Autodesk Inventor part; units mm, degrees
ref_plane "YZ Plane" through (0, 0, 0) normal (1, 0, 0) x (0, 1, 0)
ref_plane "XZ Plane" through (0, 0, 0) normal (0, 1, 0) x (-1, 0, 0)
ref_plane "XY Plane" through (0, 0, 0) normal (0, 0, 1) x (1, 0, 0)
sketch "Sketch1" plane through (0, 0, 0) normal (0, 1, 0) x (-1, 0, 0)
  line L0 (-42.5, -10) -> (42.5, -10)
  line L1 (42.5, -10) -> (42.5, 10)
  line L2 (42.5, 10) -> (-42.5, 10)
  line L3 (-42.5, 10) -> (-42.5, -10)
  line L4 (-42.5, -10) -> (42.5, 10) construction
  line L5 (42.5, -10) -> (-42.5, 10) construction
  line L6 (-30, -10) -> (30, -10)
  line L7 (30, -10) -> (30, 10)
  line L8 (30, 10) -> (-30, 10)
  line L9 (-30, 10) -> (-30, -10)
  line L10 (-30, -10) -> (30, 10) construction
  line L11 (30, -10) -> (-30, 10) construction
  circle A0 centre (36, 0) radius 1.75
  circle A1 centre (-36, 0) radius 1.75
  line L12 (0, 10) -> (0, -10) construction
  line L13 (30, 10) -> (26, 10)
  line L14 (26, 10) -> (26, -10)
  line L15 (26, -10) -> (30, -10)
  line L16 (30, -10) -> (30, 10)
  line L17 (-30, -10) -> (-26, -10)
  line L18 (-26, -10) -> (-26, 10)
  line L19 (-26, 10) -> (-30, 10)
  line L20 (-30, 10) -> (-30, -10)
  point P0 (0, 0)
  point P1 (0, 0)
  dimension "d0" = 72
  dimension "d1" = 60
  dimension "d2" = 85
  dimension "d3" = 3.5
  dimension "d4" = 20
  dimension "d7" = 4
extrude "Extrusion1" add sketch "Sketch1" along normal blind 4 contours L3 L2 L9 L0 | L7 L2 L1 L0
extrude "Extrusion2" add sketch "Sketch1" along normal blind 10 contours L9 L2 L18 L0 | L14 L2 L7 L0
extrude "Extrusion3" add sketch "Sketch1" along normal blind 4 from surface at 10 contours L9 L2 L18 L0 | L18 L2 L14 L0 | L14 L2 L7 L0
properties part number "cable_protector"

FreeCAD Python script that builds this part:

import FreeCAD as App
import Part
import Sketcher

doc = App.newDocument("Part")
params = doc.addObject("Spreadsheet::Sheet", "Params")
for row, (alias, value) in enumerate([
    ("sketch1_diameter", "3.5 mm"),
    ("sketch1_height", "20 mm"),
    ("sketch1_width", "12.5 mm"),
    ("pad1_length", "4 mm"),
    ("sketch2_width", "4 mm"),
    ("sketch2_height", "20 mm"),
    ("pad2_length", "10 mm"),
    ("sketch3_width", "60 mm"),
    ("sketch3_height", "20 mm"),
    ("pad3_length", "4 mm"),
], start=1):
    params.set(f"A{row}", alias)
    params.set(f"B{row}", "=" + value)
    params.setAlias(f"B{row}", alias)

body = doc.addObject("PartDesign::Body", "Body")
body.AllowCompound = True

sketch1 = doc.addObject("Sketcher::SketchObject", "Sketch")
body.addObject(sketch1)
sketch1.AttachmentSupport = (doc.XZ_Plane, [""])
sketch1.MapMode = "FlatFace"
sketch1.addGeometry(Part.LineSegment(App.Vector(42.5, 10, 0), App.Vector(42.5, -10, 0)), False)
sketch1.addGeometry(Part.LineSegment(App.Vector(42.5, -10, 0), App.Vector(30, -10, 0)), False)
sketch1.addGeometry(Part.LineSegment(App.Vector(30, -10, 0), App.Vector(30, 10, 0)), False)
sketch1.addGeometry(Part.LineSegment(App.Vector(30, 10, 0), App.Vector(42.5, 10, 0)), False)
sketch1.addGeometry(Part.Circle(App.Vector(36, 0, 0), App.Vector(0, 0, 1), 1.75), False)
sketch1.addGeometry(Part.LineSegment(App.Vector(-30, 10, 0), App.Vector(-30, -10, 0)), False)
sketch1.addGeometry(Part.LineSegment(App.Vector(-30, -10, 0), App.Vector(-42.5, -10, 0)), False)
sketch1.addGeometry(Part.LineSegment(App.Vector(-42.5, -10, 0), App.Vector(-42.5, 10, 0)), False)
sketch1.addGeometry(Part.LineSegment(App.Vector(-42.5, 10, 0), App.Vector(-30, 10, 0)), False)
sketch1.addGeometry(Part.Circle(App.Vector(-36, 0, 0), App.Vector(0, 0, 1), 1.75), False)
sketch1.addConstraint(Sketcher.Constraint("Coincident", 0, 2, 1, 1))
sketch1.addConstraint(Sketcher.Constraint("Coincident", 1, 2, 2, 1))
sketch1.addConstraint(Sketcher.Constraint("Coincident", 2, 2, 3, 1))
sketch1.addConstraint(Sketcher.Constraint("Coincident", 3, 2, 0, 1))
sketch1.addConstraint(Sketcher.Constraint("Coincident", 5, 2, 6, 1))
sketch1.addConstraint(Sketcher.Constraint("Coincident", 6, 2, 7, 1))
sketch1.addConstraint(Sketcher.Constraint("Coincident", 7, 2, 8, 1))
sketch1.addConstraint(Sketcher.Constraint("Coincident", 8, 2, 5, 1))
sketch1.addConstraint(Sketcher.Constraint("Vertical", 0))
sketch1.addConstraint(Sketcher.Constraint("Horizontal", 1))
sketch1.addConstraint(Sketcher.Constraint("Vertical", 2))
sketch1.addConstraint(Sketcher.Constraint("Horizontal", 3))
sketch1.addConstraint(Sketcher.Constraint("Vertical", 5))
sketch1.addConstraint(Sketcher.Constraint("Horizontal", 6))
sketch1.addConstraint(Sketcher.Constraint("Vertical", 7))
sketch1.addConstraint(Sketcher.Constraint("Horizontal", 8))
sketch1.addConstraint(Sketcher.Constraint("Equal", 4, 9))
sketch1.addConstraint(Sketcher.Constraint("Symmetric", 4, 3, 9, 3, -1, 1))
sketch1.addConstraint(Sketcher.Constraint("Symmetric", 2, 2, 5, 2, -1, 1))
sketch1.addConstraint(Sketcher.Constraint("Symmetric", 0, 2, 7, 2, -1, 1))
sketch1.addConstraint(Sketcher.Constraint("PointOnObject", 4, 3, -1))
sketch1.addConstraint(Sketcher.Constraint("Horizontal", 1, 2, 5, 2))
sketch1.addConstraint(Sketcher.Constraint("Diameter", 4, 3.5))
sketch1.addConstraint(Sketcher.Constraint("DistanceY", 0, 2, 0, 1, 20.0))
sketch1.addConstraint(Sketcher.Constraint("DistanceX", 9, 3, 4, 3, 72.0))
sketch1.addConstraint(Sketcher.Constraint("DistanceX", 5, 2, 1, 2, 60.0))
sketch1.addConstraint(Sketcher.Constraint("DistanceX", 1, 2, 1, 1, 12.5))
sketch1.setExpression("Constraints[22]", "Params.sketch1_diameter")
sketch1.setExpression("Constraints[23]", "Params.sketch1_height")
sketch1.setExpression("Constraints[26]", "Params.sketch1_width")
pad1 = doc.addObject("PartDesign::Pad", "Pad")
body.addObject(pad1)
pad1.Profile = sketch1
pad1.setExpression("Length", "Params.pad1_length")
pad1.Reversed = True

sketch2 = doc.addObject("Sketcher::SketchObject", "Sketch001")
body.addObject(sketch2)
sketch2.AttachmentSupport = (doc.XZ_Plane, [""])
sketch2.MapMode = "FlatFace"
sketch2.addGeometry(Part.LineSegment(App.Vector(30, 10, 0), App.Vector(30, -10, 0)), False)
sketch2.addGeometry(Part.LineSegment(App.Vector(30, -10, 0), App.Vector(26, -10, 0)), False)
sketch2.addGeometry(Part.LineSegment(App.Vector(26, -10, 0), App.Vector(26, 10, 0)), False)
sketch2.addGeometry(Part.LineSegment(App.Vector(26, 10, 0), App.Vector(30, 10, 0)), False)
sketch2.addGeometry(Part.LineSegment(App.Vector(-26, 10, 0), App.Vector(-26, -10, 0)), False)
sketch2.addGeometry(Part.LineSegment(App.Vector(-26, -10, 0), App.Vector(-30, -10, 0)), False)
sketch2.addGeometry(Part.LineSegment(App.Vector(-30, -10, 0), App.Vector(-30, 10, 0)), False)
sketch2.addGeometry(Part.LineSegment(App.Vector(-30, 10, 0), App.Vector(-26, 10, 0)), False)
sketch2.addConstraint(Sketcher.Constraint("Coincident", 0, 2, 1, 1))
sketch2.addConstraint(Sketcher.Constraint("Coincident", 1, 2, 2, 1))
sketch2.addConstraint(Sketcher.Constraint("Coincident", 2, 2, 3, 1))
sketch2.addConstraint(Sketcher.Constraint("Coincident", 3, 2, 0, 1))
sketch2.addConstraint(Sketcher.Constraint("Coincident", 4, 2, 5, 1))
sketch2.addConstraint(Sketcher.Constraint("Coincident", 5, 2, 6, 1))
sketch2.addConstraint(Sketcher.Constraint("Coincident", 6, 2, 7, 1))
sketch2.addConstraint(Sketcher.Constraint("Coincident", 7, 2, 4, 1))
sketch2.addConstraint(Sketcher.Constraint("Vertical", 0))
sketch2.addConstraint(Sketcher.Constraint("Horizontal", 1))
sketch2.addConstraint(Sketcher.Constraint("Vertical", 2))
sketch2.addConstraint(Sketcher.Constraint("Horizontal", 3))
sketch2.addConstraint(Sketcher.Constraint("Vertical", 4))
sketch2.addConstraint(Sketcher.Constraint("Horizontal", 5))
sketch2.addConstraint(Sketcher.Constraint("Vertical", 6))
sketch2.addConstraint(Sketcher.Constraint("Horizontal", 7))
sketch2.addConstraint(Sketcher.Constraint("Symmetric", 2, 2, 4, 2, -1, 1))
sketch2.addConstraint(Sketcher.Constraint("Symmetric", 0, 2, 6, 2, -1, 1))
sketch2.addConstraint(Sketcher.Constraint("Horizontal", 1, 2, 4, 2))
sketch2.addConstraint(Sketcher.Constraint("DistanceX", 1, 2, 1, 1, 4.0))
sketch2.addConstraint(Sketcher.Constraint("DistanceY", 0, 2, 0, 1, 20.0))
sketch2.addConstraint(Sketcher.Constraint("DistanceX", 5, 2, 0, 2, 60.0))
sketch2.setExpression("Constraints[19]", "Params.sketch2_width")
sketch2.setExpression("Constraints[20]", "Params.sketch2_height")
pad2 = doc.addObject("PartDesign::Pad", "Pad001")
body.addObject(pad2)
pad2.Profile = sketch2
pad2.setExpression("Length", "Params.pad2_length")
pad2.Reversed = True

sketch3 = doc.addObject("Sketcher::SketchObject", "Sketch002")
body.addObject(sketch3)
sketch3.AttachmentSupport = (doc.XZ_Plane, [""])
sketch3.MapMode = "FlatFace"
sketch3.AttachmentOffset = App.Placement(App.Vector(0, 0, -10), App.Rotation())
sketch3.addGeometry(Part.LineSegment(App.Vector(30, 10, 0), App.Vector(30, -10, 0)), False)
sketch3.addGeometry(Part.LineSegment(App.Vector(30, -10, 0), App.Vector(-30, -10, 0)), False)
sketch3.addGeometry(Part.LineSegment(App.Vector(-30, -10, 0), App.Vector(-30, 10, 0)), False)
sketch3.addGeometry(Part.LineSegment(App.Vector(-30, 10, 0), App.Vector(30, 10, 0)), False)
sketch3.addConstraint(Sketcher.Constraint("Coincident", 0, 2, 1, 1))
sketch3.addConstraint(Sketcher.Constraint("Coincident", 1, 2, 2, 1))
sketch3.addConstraint(Sketcher.Constraint("Coincident", 2, 2, 3, 1))
sketch3.addConstraint(Sketcher.Constraint("Coincident", 3, 2, 0, 1))
sketch3.addConstraint(Sketcher.Constraint("Vertical", 0))
sketch3.addConstraint(Sketcher.Constraint("Horizontal", 1))
sketch3.addConstraint(Sketcher.Constraint("Vertical", 2))
sketch3.addConstraint(Sketcher.Constraint("Horizontal", 3))
sketch3.addConstraint(Sketcher.Constraint("Symmetric", 0, 2, 2, 2, -1, 1))
sketch3.addConstraint(Sketcher.Constraint("DistanceX", 1, 2, 1, 1, 60.0))
sketch3.addConstraint(Sketcher.Constraint("DistanceY", 0, 2, 0, 1, 20.0))
sketch3.setExpression("Constraints[9]", "Params.sketch3_width")
sketch3.setExpression("Constraints[10]", "Params.sketch3_height")
pad3 = doc.addObject("PartDesign::Pad", "Pad002")
body.addObject(pad3)
pad3.Profile = sketch3
pad3.setExpression("Length", "Params.pad3_length")
pad3.Reversed = True

doc.recompute()
